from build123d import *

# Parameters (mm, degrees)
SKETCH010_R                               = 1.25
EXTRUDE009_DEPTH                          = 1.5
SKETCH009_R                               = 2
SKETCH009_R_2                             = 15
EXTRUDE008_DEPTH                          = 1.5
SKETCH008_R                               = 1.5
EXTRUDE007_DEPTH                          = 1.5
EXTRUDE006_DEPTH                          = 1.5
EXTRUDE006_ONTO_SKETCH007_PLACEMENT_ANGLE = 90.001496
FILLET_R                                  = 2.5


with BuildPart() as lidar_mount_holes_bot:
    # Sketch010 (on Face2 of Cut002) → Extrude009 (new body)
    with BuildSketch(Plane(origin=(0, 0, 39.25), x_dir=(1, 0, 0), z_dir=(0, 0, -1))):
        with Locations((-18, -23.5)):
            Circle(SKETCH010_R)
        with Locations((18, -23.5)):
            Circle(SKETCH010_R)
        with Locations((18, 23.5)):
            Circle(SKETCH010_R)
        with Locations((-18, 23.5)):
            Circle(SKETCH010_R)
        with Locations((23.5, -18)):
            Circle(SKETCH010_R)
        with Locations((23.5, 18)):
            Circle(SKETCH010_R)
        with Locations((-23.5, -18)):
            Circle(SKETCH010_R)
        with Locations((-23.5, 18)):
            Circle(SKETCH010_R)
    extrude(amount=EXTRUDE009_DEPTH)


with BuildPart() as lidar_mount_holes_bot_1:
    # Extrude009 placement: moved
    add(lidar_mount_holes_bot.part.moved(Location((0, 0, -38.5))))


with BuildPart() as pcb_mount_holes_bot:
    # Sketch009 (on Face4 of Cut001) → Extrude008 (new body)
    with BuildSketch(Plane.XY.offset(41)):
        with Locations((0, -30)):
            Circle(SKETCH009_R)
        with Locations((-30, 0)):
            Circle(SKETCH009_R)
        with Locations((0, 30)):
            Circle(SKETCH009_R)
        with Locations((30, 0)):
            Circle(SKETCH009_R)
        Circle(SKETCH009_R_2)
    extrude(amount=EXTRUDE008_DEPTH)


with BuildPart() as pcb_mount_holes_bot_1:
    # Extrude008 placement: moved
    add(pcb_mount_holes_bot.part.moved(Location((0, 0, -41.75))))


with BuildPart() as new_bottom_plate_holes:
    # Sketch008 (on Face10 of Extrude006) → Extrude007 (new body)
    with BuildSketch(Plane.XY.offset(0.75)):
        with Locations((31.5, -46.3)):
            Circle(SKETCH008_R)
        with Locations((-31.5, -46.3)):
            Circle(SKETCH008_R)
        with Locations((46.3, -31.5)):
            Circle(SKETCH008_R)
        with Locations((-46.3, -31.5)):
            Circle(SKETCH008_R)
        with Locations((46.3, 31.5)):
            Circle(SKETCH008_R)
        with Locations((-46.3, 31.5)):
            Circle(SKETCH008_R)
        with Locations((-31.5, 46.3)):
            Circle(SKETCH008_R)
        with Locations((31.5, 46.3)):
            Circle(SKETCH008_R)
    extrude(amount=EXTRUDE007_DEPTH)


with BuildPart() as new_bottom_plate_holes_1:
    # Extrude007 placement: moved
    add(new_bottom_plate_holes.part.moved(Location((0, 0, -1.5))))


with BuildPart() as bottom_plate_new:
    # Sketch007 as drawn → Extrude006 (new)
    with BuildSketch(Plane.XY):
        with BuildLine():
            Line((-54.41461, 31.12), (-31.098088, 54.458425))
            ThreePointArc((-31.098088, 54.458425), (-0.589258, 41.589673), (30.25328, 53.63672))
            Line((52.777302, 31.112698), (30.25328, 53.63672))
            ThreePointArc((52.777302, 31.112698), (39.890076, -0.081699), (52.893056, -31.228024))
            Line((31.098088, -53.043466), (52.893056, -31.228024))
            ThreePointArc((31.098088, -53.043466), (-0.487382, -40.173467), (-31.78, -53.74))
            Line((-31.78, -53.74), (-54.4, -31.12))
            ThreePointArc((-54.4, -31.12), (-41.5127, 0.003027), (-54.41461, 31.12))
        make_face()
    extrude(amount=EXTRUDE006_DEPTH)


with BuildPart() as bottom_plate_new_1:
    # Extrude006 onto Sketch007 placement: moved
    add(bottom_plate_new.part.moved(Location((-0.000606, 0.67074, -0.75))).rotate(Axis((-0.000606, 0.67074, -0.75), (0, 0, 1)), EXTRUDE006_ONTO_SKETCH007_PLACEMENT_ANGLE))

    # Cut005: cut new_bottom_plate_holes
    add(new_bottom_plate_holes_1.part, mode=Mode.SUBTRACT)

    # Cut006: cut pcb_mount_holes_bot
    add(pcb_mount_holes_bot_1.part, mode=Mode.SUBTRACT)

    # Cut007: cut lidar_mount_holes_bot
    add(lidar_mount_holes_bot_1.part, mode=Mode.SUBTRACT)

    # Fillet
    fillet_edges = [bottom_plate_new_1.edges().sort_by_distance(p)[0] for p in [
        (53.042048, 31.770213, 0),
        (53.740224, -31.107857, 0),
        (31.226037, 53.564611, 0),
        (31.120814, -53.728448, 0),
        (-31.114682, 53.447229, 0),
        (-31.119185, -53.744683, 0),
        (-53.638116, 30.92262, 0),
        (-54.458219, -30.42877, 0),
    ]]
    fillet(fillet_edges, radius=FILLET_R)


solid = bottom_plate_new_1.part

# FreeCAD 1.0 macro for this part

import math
import FreeCAD as App
import Part
import Sketcher
from FreeCAD import Vector
Q = App.Units.Quantity


def edges_at(feature, points):
    """Names of the edges that pass closest to the given points."""
    edges = feature.Shape.Edges
    near = lambda p: min(range(len(edges)), key=lambda i: edges[i].distToShape(Part.Vertex(*p))[0])
    return sorted({f"Edge{near(p) + 1}" for p in points})

doc = App.newDocument("Part")
params = doc.addObject("Spreadsheet::Sheet", "Params")
for row, (alias, value) in enumerate([
    ("sketch1_diameter", "2.5 mm"),
    ("pad1_length", "1.5 mm"),
    ("sketch2_diameter", "4 mm"),
    ("sketch2_diameter2", "30 mm"),
    ("pad2_length", "1.5 mm"),
    ("sketch3_diameter", "3 mm"),
    ("pad3_length", "1.5 mm"),
    ("sketch4_radius", "44.000001 mm"),
    ("pad4_length", "1.5 mm"),
    ("fillet_radius", "2.5 mm"),
], start=1):
    params.set(f"A{row}", alias)
    params.set(f"B{row}", "=" + value)
    params.setAlias(f"B{row}", alias)

body = doc.addObject("PartDesign::Body", "Body")
body.AllowCompound = True

sketch1 = doc.addObject("Sketcher::SketchObject", "Sketch")
body.addObject(sketch1)
sketch1.AttachmentSupport = (doc.XY_Plane, [""])
sketch1.MapMode = "FlatFace"
sketch1.AttachmentOffset = App.Placement(Vector(0, 0, 39.25), App.Rotation())
sketch1.addGeometry(Part.Circle(Vector(-18, 23.5, 0), Vector(0, 0, 1), 1.2), False)
sketch1.addGeometry(Part.Circle(Vector(18, 23.5, 0), Vector(0, 0, 1), 1.2), False)
sketch1.addGeometry(Part.Circle(Vector(18, -23.5, 0), Vector(0, 0, 1), 1.2), False)
sketch1.addGeometry(Part.Circle(Vector(-18, -23.5, 0), Vector(0, 0, 1), 1.2), False)
sketch1.addGeometry(Part.Circle(Vector(23.5, 18, 0), Vector(0, 0, 1), 1.2), False)
sketch1.addGeometry(Part.Circle(Vector(23.5, -18, 0), Vector(0, 0, 1), 1.2), False)
sketch1.addGeometry(Part.Circle(Vector(-23.5, 18, 0), Vector(0, 0, 1), 1.2), False)
sketch1.addGeometry(Part.Circle(Vector(-23.5, -18, 0), Vector(0, 0, 1), 1.2), False)
sketch1.addConstraint(Sketcher.Constraint("Equal", 0, 1))
sketch1.addConstraint(Sketcher.Constraint("Equal", 1, 2))
sketch1.addConstraint(Sketcher.Constraint("Equal", 2, 3))
sketch1.addConstraint(Sketcher.Constraint("Equal", 3, 4))
sketch1.addConstraint(Sketcher.Constraint("Equal", 4, 5))
sketch1.addConstraint(Sketcher.Constraint("Equal", 5, 6))
sketch1.addConstraint(Sketcher.Constraint("Equal", 6, 7))
sketch1.addConstraint(Sketcher.Constraint("Symmetric", 0, 3, 2, 3, -1, 1))
sketch1.addConstraint(Sketcher.Constraint("Symmetric", 1, 3, 3, 3, -1, 1))
sketch1.addConstraint(Sketcher.Constraint("Symmetric", 5, 3, 6, 3, -1, 1))
sketch1.addConstraint(Sketcher.Constraint("Symmetric", 4, 3, 7, 3, -1, 1))
sketch1.addConstraint(Sketcher.Constraint("Symmetric", 0, 3, 1, 3, -2))
sketch1.addConstraint(Sketcher.Constraint("Symmetric", 4, 3, 6, 3, -2))
sketch1.addConstraint(Sketcher.Constraint("Diameter", 0, Q("2.5 mm")))
sketch1.addConstraint(Sketcher.Constraint("DistanceX", 0, 3, -1, 1, Q("18 mm")))
sketch1.addConstraint(Sketcher.Constraint("DistanceY", -1, 1, 4, 3, Q("18 mm")))
sketch1.addConstraint(Sketcher.Constraint("DistanceY", 2, 3, 1, 3, Q("47 mm")))
sketch1.addConstraint(Sketcher.Constraint("DistanceX", 6, 3, 4, 3, Q("47 mm")))
sketch1.setExpression("Constraints[13]", "Params.sketch1_diameter")
pad1 = doc.addObject("PartDesign::Pad", "Pad")
body.addObject(pad1)
pad1.Profile = sketch1
pad1.setExpression("Length", "Params.pad1_length")
pad1.Reversed = True
body2 = doc.addObject("PartDesign::Body", "Body001")
body2.AllowCompound = True
doc.recompute()

body.Placement = App.Placement(Vector(0, 0, -38.5), App.Rotation(Vector(0, 0, 1), 0))
boolean = doc.addObject("PartDesign::Boolean", "Boolean")
body2.addObject(boolean)
boolean.Type = "Fuse"
boolean.addObjects([body])
body3 = doc.addObject("PartDesign::Body", "Body002")
body3.AllowCompound = True

sketch2 = doc.addObject("Sketcher::SketchObject", "Sketch001")
body3.addObject(sketch2)
sketch2.AttachmentSupport = (doc.getObject("XY_Plane002"), [""])
sketch2.MapMode = "FlatFace"
sketch2.AttachmentOffset = App.Placement(Vector(0, 0, 41), App.Rotation())
sketch2.addGeometry(Part.Circle(Vector(0, -30, 0), Vector(0, 0, 1), 2), False)
sketch2.addGeometry(Part.Circle(Vector(-30, 0, 0), Vector(0, 0, 1), 2), False)
sketch2.addGeometry(Part.Circle(Vector(0, 30, 0), Vector(0, 0, 1), 2), False)
sketch2.addGeometry(Part.Circle(Vector(30, 0, 0), Vector(0, 0, 1), 2), False)
sketch2.addGeometry(Part.Circle(Vector(0, 0, 0), Vector(0, 0, 1), 15), False)
sketch2.addConstraint(Sketcher.Constraint("Coincident", 4, 3, -1, 1))
sketch2.addConstraint(Sketcher.Constraint("Equal", 0, 1))
sketch2.addConstraint(Sketcher.Constraint("Equal", 1, 2))
sketch2.addConstraint(Sketcher.Constraint("Equal", 2, 3))
sketch2.addConstraint(Sketcher.Constraint("Symmetric", 0, 3, 2, 3, -1, 1))
sketch2.addConstraint(Sketcher.Constraint("Symmetric", 1, 3, 3, 3, -1, 1))
sketch2.addConstraint(Sketcher.Constraint("PointOnObject", 0, 3, -2))
sketch2.addConstraint(Sketcher.Constraint("PointOnObject", 1, 3, -1))
sketch2.addConstraint(Sketcher.Constraint("Diameter", 0, Q("4 mm")))
sketch2.addConstraint(Sketcher.Constraint("Diameter", 4, Q("30 mm")))
sketch2.addConstraint(Sketcher.Constraint("DistanceY", 0, 3, -1, 1, Q("30 mm")))
sketch2.addConstraint(Sketcher.Constraint("DistanceX", 1, 3, -1, 1, Q("30 mm")))
sketch2.setExpression("Constraints[8]", "Params.sketch2_diameter")
sketch2.setExpression("Constraints[9]", "Params.sketch2_diameter2")
pad2 = doc.addObject("PartDesign::Pad", "Pad001")
body3.addObject(pad2)
pad2.Profile = sketch2
pad2.setExpression("Length", "Params.pad2_length")
body4 = doc.addObject("PartDesign::Body", "Body003")
body4.AllowCompound = True
doc.recompute()

body3.Placement = App.Placement(Vector(0, 0, -41.75), App.Rotation(Vector(0, 0, 1), 0))
boolean2 = doc.addObject("PartDesign::Boolean", "Boolean001")
body4.addObject(boolean2)
boolean2.Type = "Fuse"
boolean2.addObjects([body3])
body5 = doc.addObject("PartDesign::Body", "Body004")
body5.AllowCompound = True

sketch3 = doc.addObject("Sketcher::SketchObject", "Sketch002")
body5.addObject(sketch3)
sketch3.AttachmentSupport = (doc.getObject("XY_Plane004"), [""])
sketch3.MapMode = "FlatFace"
sketch3.AttachmentOffset = App.Placement(Vector(0, 0, 0.75), App.Rotation())
sketch3.addGeometry(Part.Circle(Vector(31.5, -46.3, 0), Vector(0, 0, 1), 1.5), False)
sketch3.addGeometry(Part.Circle(Vector(-31.5, -46.3, 0), Vector(0, 0, 1), 1.5), False)
sketch3.addGeometry(Part.Circle(Vector(46.3, -31.5, 0), Vector(0, 0, 1), 1.5), False)
sketch3.addGeometry(Part.Circle(Vector(-46.3, -31.5, 0), Vector(0, 0, 1), 1.5), False)
sketch3.addGeometry(Part.Circle(Vector(46.3, 31.5, 0), Vector(0, 0, 1), 1.5), False)
sketch3.addGeometry(Part.Circle(Vector(-46.3, 31.5, 0), Vector(0, 0, 1), 1.5), False)
sketch3.addGeometry(Part.Circle(Vector(-31.5, 46.3, 0), Vector(0, 0, 1), 1.5), False)
sketch3.addGeometry(Part.Circle(Vector(31.5, 46.3, 0), Vector(0, 0, 1), 1.5), False)
sketch3.addConstraint(Sketcher.Constraint("Equal", 0, 1))
sketch3.addConstraint(Sketcher.Constraint("Equal", 1, 2))
sketch3.addConstraint(Sketcher.Constraint("Equal", 2, 3))
sketch3.addConstraint(Sketcher.Constraint("Equal", 3, 4))
sketch3.addConstraint(Sketcher.Constraint("Equal", 4, 5))
sketch3.addConstraint(Sketcher.Constraint("Equal", 5, 6))
sketch3.addConstraint(Sketcher.Constraint("Equal", 6, 7))
sketch3.addConstraint(Sketcher.Constraint("Symmetric", 3, 3, 4, 3, -1, 1))
sketch3.addConstraint(Sketcher.Constraint("Symmetric", 2, 3, 5, 3, -1, 1))
sketch3.addConstraint(Sketcher.Constraint("Symmetric", 0, 3, 6, 3, -1, 1))
sketch3.addConstraint(Sketcher.Constraint("Symmetric", 1, 3, 7, 3, -1, 1))
sketch3.addConstraint(Sketcher.Constraint("Symmetric", 0, 3, 1, 3, -2))
sketch3.addConstraint(Sketcher.Constraint("Symmetric", 2, 3, 3, 3, -2))
sketch3.addConstraint(Sketcher.Constraint("Diameter", 0, Q("3 mm")))
sketch3.addConstraint(Sketcher.Constraint("DistanceX", 1, 3, 0, 3, Q("63 mm")))
sketch3.addConstraint(Sketcher.Constraint("DistanceY", 2, 3, 4, 3, Q("63 mm")))
sketch3.addConstraint(Sketcher.Constraint("DistanceY", 0, 3, -1, 1, Q("46.3 mm")))
sketch3.addConstraint(Sketcher.Constraint("DistanceX", -1, 1, 2, 3, Q("46.3 mm")))
sketch3.setExpression("Constraints[13]", "Params.sketch3_diameter")
pad3 = doc.addObject("PartDesign::Pad", "Pad002")
body5.addObject(pad3)
pad3.Profile = sketch3
pad3.setExpression("Length", "Params.pad3_length")
body6 = doc.addObject("PartDesign::Body", "Body005")
body6.AllowCompound = True
doc.recompute()

body5.Placement = App.Placement(Vector(0, 0, -1.5), App.Rotation(Vector(0, 0, 1), 0))
boolean3 = doc.addObject("PartDesign::Boolean", "Boolean002")
body6.addObject(boolean3)
boolean3.Type = "Fuse"
boolean3.addObjects([body5])
body7 = doc.addObject("PartDesign::Body", "Body006")

sketch4 = doc.addObject("Sketcher::SketchObject", "Sketch003")
body7.addObject(sketch4)
sketch4.AttachmentSupport = (doc.getObject("XY_Plane006"), [""])
sketch4.MapMode = "FlatFace"
sketch4.addGeometry(Part.LineSegment(Vector(-31, 54, 0), Vector(-54, 31, 0)), False)
sketch4.addGeometry(Part.ArcOfCircle(Part.Circle(Vector(-86, 0, 0), Vector(0, 0, 1), 44), math.radians(-45), math.radians(45)), False)
sketch4.addGeometry(Part.LineSegment(Vector(-54, -31, 0), Vector(-32, -54, 0)), False)
sketch4.addGeometry(Part.ArcOfCircle(Part.Circle(Vector(0, -84, 0), Vector(0, 0, 1), 44), math.radians(45), math.radians(136)), False)
sketch4.addGeometry(Part.LineSegment(Vector(31, -53, 0), Vector(53, -31, 0)), False)
sketch4.addGeometry(Part.ArcOfCircle(Part.Circle(Vector(84, 0, 0), Vector(0, 0, 1), 44), math.radians(135), math.radians(225)), False)
sketch4.addGeometry(Part.LineSegment(Vector(53, 31, 0), Vector(30, 54, 0)), False)
sketch4.addGeometry(Part.ArcOfCircle(Part.Circle(Vector(0, 86, 0), Vector(0, 0, 1), 44), math.radians(-135), math.radians(-47)), False)
sketch4.addConstraint(Sketcher.Constraint("Coincident", 0, 2, 1, 2))
sketch4.addConstraint(Sketcher.Constraint("Coincident", 1, 1, 2, 1))
sketch4.addConstraint(Sketcher.Constraint("Coincident", 2, 2, 3, 2))
sketch4.addConstraint(Sketcher.Constraint("Coincident", 3, 1, 4, 1))
sketch4.addConstraint(Sketcher.Constraint("Coincident", 4, 2, 5, 2))
sketch4.addConstraint(Sketcher.Constraint("Coincident", 5, 1, 6, 1))
sketch4.addConstraint(Sketcher.Constraint("Coincident", 6, 2, 7, 2))
sketch4.addConstraint(Sketcher.Constraint("Coincident", 7, 1, 0, 1))
sketch4.addConstraint(Sketcher.Constraint("Equal", 1, 3))
sketch4.addConstraint(Sketcher.Constraint("Equal", 3, 5))
sketch4.addConstraint(Sketcher.Constraint("Equal", 5, 7))
sketch4.addConstraint(Sketcher.Constraint("PointOnObject", 3, 3, -2))
sketch4.addConstraint(Sketcher.Constraint("PointOnObject", 5, 3, -1))
sketch4.addConstraint(Sketcher.Constraint("PointOnObject", 7, 3, -2))
sketch4.addConstraint(Sketcher.Constraint("Parallel", 0, 4))
sketch4.addConstraint(Sketcher.Constraint("Parallel", 2, 6))
sketch4.addConstraint(Sketcher.Constraint("Radius", 1, Q("44.000001 mm")))
sketch4.addConstraint(Sketcher.Constraint("Angle", 2, Q("-45 deg")))
sketch4.addConstraint(Sketcher.Constraint("DistanceX", 1, 1, -1, 1, Q("54.4 mm")))
sketch4.addConstraint(Sketcher.Constraint("DistanceX", -1, 1, 5, 3, Q("83.89 mm")))
sketch4.addConstraint(Sketcher.Constraint("DistanceY", -1, 1, 0, 2, Q("31.12 mm")))
sketch4.addConstraint(Sketcher.Constraint("DistanceY", 1, 1, -1, 1, Q("31.12 mm")))
sketch4.addConstraint(Sketcher.Constraint("DistanceX", 2, 2, -1, 1, Q("31.78 mm")))
sketch4.addConstraint(Sketcher.Constraint("DistanceX", 1, 3, -1, 1, Q("85.5127 mm")))
sketch4.addConstraint(Sketcher.Constraint("DistanceX", -1, 1, 5, 1, Q("52.777302 mm")))
sketch4.addConstraint(Sketcher.Constraint("DistanceY", 3, 3, 3, 1, Q("31.127302 mm")))
sketch4.addConstraint(Sketcher.Constraint("DistanceX", -1, 1, 6, 2, Q("30.25328 mm")))
sketch4.addConstraint(Sketcher.Constraint("DistanceX", 3, 1, 4, 2, Q("21.794968 mm")))
sketch4.setExpression("Constraints[16]", "Params.sketch4_radius")
pad4 = doc.addObject("PartDesign::Pad", "Pad003")
body7.addObject(pad4)
pad4.Profile = sketch4
pad4.setExpression("Length", "Params.pad4_length")
body8 = doc.addObject("PartDesign::Body", "Body007")
doc.recompute()

body7.Placement = App.Placement(Vector(-0.000606, 0.67074, -0.75), App.Rotation(Vector(0, 0, 1), 90.001496))
boolean4 = doc.addObject("PartDesign::Boolean", "Boolean003")
body8.addObject(boolean4)
boolean4.Type = "Fuse"
boolean4.addObjects([body7])
doc.recompute()

boolean5 = doc.addObject("PartDesign::Boolean", "Boolean004")
body8.addObject(boolean5)
boolean5.Type = "Cut"
boolean5.addObjects([body6])
doc.recompute()

boolean6 = doc.addObject("PartDesign::Boolean", "Boolean005")
body8.addObject(boolean6)
boolean6.Type = "Cut"
boolean6.addObjects([body4])
doc.recompute()

boolean7 = doc.addObject("PartDesign::Boolean", "Boolean006")
body8.addObject(boolean7)
boolean7.Type = "Cut"
boolean7.addObjects([body2])
doc.recompute()

fillet = doc.addObject("PartDesign::Fillet", "Fillet")
body8.addObject(fillet)
fillet.Base = (boolean7, edges_at(boolean7, [
    (53.042, 31.77, 0),
    (53.74, -31.108, 0),
    (31.226, 53.565, 0),
    (31.121, -53.728, 0),
    (-31.115, 53.447, 0),
    (-31.119, -53.745, 0),
    (-53.638, 30.923, 0),
    (-54.458, -30.429, 0),
]))
fillet.setExpression("Radius", "Params.fillet_radius")

doc.recompute()
